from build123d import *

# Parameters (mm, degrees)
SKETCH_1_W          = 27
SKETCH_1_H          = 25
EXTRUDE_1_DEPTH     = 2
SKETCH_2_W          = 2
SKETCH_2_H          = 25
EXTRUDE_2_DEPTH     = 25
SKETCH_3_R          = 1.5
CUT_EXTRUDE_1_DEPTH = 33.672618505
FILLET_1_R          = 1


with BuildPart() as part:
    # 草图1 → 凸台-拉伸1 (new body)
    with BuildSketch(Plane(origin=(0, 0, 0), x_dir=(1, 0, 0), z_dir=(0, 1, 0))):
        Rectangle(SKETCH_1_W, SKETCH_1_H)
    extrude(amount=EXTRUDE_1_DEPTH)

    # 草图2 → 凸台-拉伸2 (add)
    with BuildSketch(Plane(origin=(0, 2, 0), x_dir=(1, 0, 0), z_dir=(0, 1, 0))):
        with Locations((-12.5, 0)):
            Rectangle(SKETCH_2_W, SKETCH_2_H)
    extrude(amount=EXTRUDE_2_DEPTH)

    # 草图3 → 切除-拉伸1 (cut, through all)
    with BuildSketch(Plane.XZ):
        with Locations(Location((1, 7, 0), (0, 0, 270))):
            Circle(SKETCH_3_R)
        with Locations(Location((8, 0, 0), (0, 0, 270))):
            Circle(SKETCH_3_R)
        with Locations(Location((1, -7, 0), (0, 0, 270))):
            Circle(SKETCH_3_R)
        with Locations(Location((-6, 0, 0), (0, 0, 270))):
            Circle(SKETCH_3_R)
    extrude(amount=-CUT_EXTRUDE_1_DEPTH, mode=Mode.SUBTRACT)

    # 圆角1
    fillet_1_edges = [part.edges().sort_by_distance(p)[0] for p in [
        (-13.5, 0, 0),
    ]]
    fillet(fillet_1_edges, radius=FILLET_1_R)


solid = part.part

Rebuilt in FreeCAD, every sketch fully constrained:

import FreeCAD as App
import Part
import Sketcher
from FreeCAD import Vector


def edges_at(feature, points):
    """Names of the edges that pass closest to the given points."""
    edges = feature.Shape.Edges
    near = lambda p: min(range(len(edges)), key=lambda i: edges[i].distToShape(Part.Vertex(*p))[0])
    return sorted({f"Edge{near(p) + 1}" for p in points})

doc = App.newDocument("Part")
params = doc.addObject("Spreadsheet::Sheet", "Params")
for row, (alias, value) in enumerate([
    ("sketch1_width", "27 mm"),
    ("sketch1_height", "25 mm"),
    ("pad1_length", "2 mm"),
    ("sketch2_width", "2 mm"),
    ("sketch2_height", "25 mm"),
    ("pad2_length", "25 mm"),
    ("sketch3_diameter", "3 mm"),
    ("fillet_radius", "1 mm"),
], start=1):
    params.set(f"A{row}", alias)
    params.set(f"B{row}", "=" + value)
    params.setAlias(f"B{row}", alias)

body = doc.addObject("PartDesign::Body", "Body")

# Sketch on XZ plane
sketch1 = body.newObject("Sketcher::SketchObject", "Sketch")
sketch1.AttachmentSupport = (doc.getObject("XZ_Plane"), [""])
sketch1.MapMode = "FlatFace"
sketch1.addGeometry([
    Part.LineSegment(Vector(-14, -12, 0), Vector(-14, 12, 0)),
    Part.LineSegment(Vector(-14, 12, 0), Vector(14, 12, 0)),
    Part.LineSegment(Vector(14, 12, 0), Vector(14, -12, 0)),
    Part.LineSegment(Vector(14, -12, 0), Vector(-14, -12, 0)),
], False)
sketch1.addConstraint([
    Sketcher.Constraint("Coincident", 0, 2, 1, 1),
    Sketcher.Constraint("Coincident", 1, 2, 2, 1),
    Sketcher.Constraint("Coincident", 2, 2, 3, 1),
    Sketcher.Constraint("Coincident", 3, 2, 0, 1),
    Sketcher.Constraint("Vertical", 0),
    Sketcher.Constraint("Horizontal", 1),
    Sketcher.Constraint("Vertical", 2),
    Sketcher.Constraint("Horizontal", 3),
    Sketcher.Constraint("Symmetric", 0, 2, 2, 2, -1, 1),
    Sketcher.Constraint("DistanceX", 1, 1, 1, 2, 27.0),
    Sketcher.Constraint("DistanceY", 0, 1, 0, 2, 25.0),
])
sketch1.setExpression("Constraints[9]", "Params.sketch1_width")
sketch1.setExpression("Constraints[10]", "Params.sketch1_height")
pad1 = body.newObject("PartDesign::Pad", "Pad")
pad1.Profile = sketch1
pad1.setExpression("Length", "Params.pad1_length")
pad1.Reversed = True

# Sketch on XZ plane
sketch2 = body.newObject("Sketcher::SketchObject", "Sketch001")
sketch2.AttachmentSupport = (doc.getObject("XZ_Plane"), [""])
sketch2.MapMode = "FlatFace"
sketch2.AttachmentOffset = App.Placement(Vector(0, 0, -2), App.Rotation())
sketch2.addGeometry([
    Part.LineSegment(Vector(-13.5, -12.5, 0), Vector(-13.5, 12.5, 0)),
    Part.LineSegment(Vector(-13.5, 12.5, 0), Vector(-11.5, 12.5, 0)),
    Part.LineSegment(Vector(-11.5, 12.5, 0), Vector(-11.5, -12.5, 0)),
    Part.LineSegment(Vector(-11.5, -12.5, 0), Vector(-13.5, -12.5, 0)),
], False)
sketch2.addConstraint([
    Sketcher.Constraint("Coincident", 0, 2, 1, 1),
    Sketcher.Constraint("Coincident", 1, 2, 2, 1),
    Sketcher.Constraint("Coincident", 2, 2, 3, 1),
    Sketcher.Constraint("Coincident", 3, 2, 0, 1),
    Sketcher.Constraint("Vertical", 0),
    Sketcher.Constraint("Horizontal", 1),
    Sketcher.Constraint("Vertical", 2),
    Sketcher.Constraint("Horizontal", 3),
    Sketcher.Constraint("DistanceX", 1, 1, 1, 2, 2.0),
    Sketcher.Constraint("DistanceY", 0, 1, 0, 2, 25.0),
    Sketcher.Constraint("DistanceX", 0, 2, -1, 1, 13.5),
    Sketcher.Constraint("DistanceY", -1, 1, 0, 2, 12.5),
])
sketch2.setExpression("Constraints[8]", "Params.sketch2_width")
sketch2.setExpression("Constraints[9]", "Params.sketch2_height")
pad2 = body.newObject("PartDesign::Pad", "Pad001")
pad2.Profile = sketch2
pad2.setExpression("Length", "Params.pad2_length")
pad2.Reversed = True

# Sketch on XZ plane
sketch3 = body.newObject("Sketcher::SketchObject", "Sketch002")
sketch3.AttachmentSupport = (doc.getObject("XZ_Plane"), [""])
sketch3.MapMode = "FlatFace"
sketch3.addGeometry([
    Part.Circle(Vector(1, 7, 0), Vector(0, 0, 1), 1.5),
    Part.Circle(Vector(8, 0, 0), Vector(0, 0, 1), 1.5),
    Part.Circle(Vector(1, -7, 0), Vector(0, 0, 1), 1.5),
    Part.Circle(Vector(-6, 0, 0), Vector(0, 0, 1), 1.5),
], False)
sketch3.addConstraint([
    Sketcher.Constraint("Equal", 0, 1),
    Sketcher.Constraint("Equal", 1, 2),
    Sketcher.Constraint("Equal", 2, 3),
    Sketcher.Constraint("Symmetric", 0, 3, 2, 3, -1),
    Sketcher.Constraint("PointOnObject", 1, 3, -1),
    Sketcher.Constraint("PointOnObject", 3, 3, -1),
    Sketcher.Constraint("Diameter", 0, 3.0),
    Sketcher.Constraint("DistanceX", -1, 1, 0, 3, 1.0),
    Sketcher.Constraint("DistanceY", -1, 1, 0, 3, 7.0),
    Sketcher.Constraint("DistanceX", -1, 1, 1, 3, 8.0),
    Sketcher.Constraint("DistanceX", 3, 3, -1, 1, 6.0),
])
sketch3.setExpression("Constraints[6]", "Params.sketch3_diameter")
pocket1 = body.newObject("PartDesign::Pocket", "Pocket")
pocket1.Profile = sketch3
pocket1.Type = "ThroughAll"
doc.recompute()

fillet = body.newObject("PartDesign::Fillet", "Fillet")
fillet.Base = (pocket1, edges_at(pocket1, [(-13.5, 0, 0)]))
fillet.setExpression("Radius", "Params.fillet_radius")

doc.recompute()
